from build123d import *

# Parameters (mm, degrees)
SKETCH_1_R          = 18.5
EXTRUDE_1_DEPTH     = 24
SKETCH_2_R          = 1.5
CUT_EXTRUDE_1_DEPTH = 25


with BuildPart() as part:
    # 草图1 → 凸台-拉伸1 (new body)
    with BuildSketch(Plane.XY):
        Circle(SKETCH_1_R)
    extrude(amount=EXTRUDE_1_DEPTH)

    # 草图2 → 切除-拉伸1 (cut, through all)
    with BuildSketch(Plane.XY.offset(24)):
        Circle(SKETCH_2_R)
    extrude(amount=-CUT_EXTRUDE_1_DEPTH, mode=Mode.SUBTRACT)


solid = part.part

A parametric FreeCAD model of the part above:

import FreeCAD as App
import Part
import Sketcher

V = App.Vector
Q = App.Units.Quantity

doc = App.newDocument("Part")
body = doc.addObject("PartDesign::Body", "Body")

sketch1 = body.newObject("Sketcher::SketchObject", "Sketch")
sketch1.AttachmentSupport = (doc.getObject("XY_Plane"), [""])
sketch1.MapMode = "FlatFace"
sketch1.addGeometry(Part.Circle(V(0, 0, 0), V(0, 0, 1), 18.5), False)
sketch1.addConstraint(Sketcher.Constraint("Coincident", 0, 3, -1, 1))
sketch1.addConstraint(Sketcher.Constraint("Diameter", 0, Q("37 mm")))
pad1 = body.newObject("PartDesign::Pad", "Pad")
pad1.Profile = sketch1
pad1.Length = 24

sketch2 = body.newObject("Sketcher::SketchObject", "Sketch001")
sketch2.AttachmentSupport = (doc.getObject("XY_Plane"), [""])
sketch2.MapMode = "FlatFace"
sketch2.AttachmentOffset = App.Placement(V(0, 0, 24), App.Rotation())
sketch2.addGeometry(Part.Circle(V(0, 0, 0), V(0, 0, 1), 1.5), False)
sketch2.addConstraint(Sketcher.Constraint("Coincident", 0, 3, -1, 1))
sketch2.addConstraint(Sketcher.Constraint("Diameter", 0, Q("3 mm")))
pocket1 = body.newObject("PartDesign::Pocket", "Pocket")
pocket1.Profile = sketch2
pocket1.Type = "ThroughAll"

doc.recompute()
